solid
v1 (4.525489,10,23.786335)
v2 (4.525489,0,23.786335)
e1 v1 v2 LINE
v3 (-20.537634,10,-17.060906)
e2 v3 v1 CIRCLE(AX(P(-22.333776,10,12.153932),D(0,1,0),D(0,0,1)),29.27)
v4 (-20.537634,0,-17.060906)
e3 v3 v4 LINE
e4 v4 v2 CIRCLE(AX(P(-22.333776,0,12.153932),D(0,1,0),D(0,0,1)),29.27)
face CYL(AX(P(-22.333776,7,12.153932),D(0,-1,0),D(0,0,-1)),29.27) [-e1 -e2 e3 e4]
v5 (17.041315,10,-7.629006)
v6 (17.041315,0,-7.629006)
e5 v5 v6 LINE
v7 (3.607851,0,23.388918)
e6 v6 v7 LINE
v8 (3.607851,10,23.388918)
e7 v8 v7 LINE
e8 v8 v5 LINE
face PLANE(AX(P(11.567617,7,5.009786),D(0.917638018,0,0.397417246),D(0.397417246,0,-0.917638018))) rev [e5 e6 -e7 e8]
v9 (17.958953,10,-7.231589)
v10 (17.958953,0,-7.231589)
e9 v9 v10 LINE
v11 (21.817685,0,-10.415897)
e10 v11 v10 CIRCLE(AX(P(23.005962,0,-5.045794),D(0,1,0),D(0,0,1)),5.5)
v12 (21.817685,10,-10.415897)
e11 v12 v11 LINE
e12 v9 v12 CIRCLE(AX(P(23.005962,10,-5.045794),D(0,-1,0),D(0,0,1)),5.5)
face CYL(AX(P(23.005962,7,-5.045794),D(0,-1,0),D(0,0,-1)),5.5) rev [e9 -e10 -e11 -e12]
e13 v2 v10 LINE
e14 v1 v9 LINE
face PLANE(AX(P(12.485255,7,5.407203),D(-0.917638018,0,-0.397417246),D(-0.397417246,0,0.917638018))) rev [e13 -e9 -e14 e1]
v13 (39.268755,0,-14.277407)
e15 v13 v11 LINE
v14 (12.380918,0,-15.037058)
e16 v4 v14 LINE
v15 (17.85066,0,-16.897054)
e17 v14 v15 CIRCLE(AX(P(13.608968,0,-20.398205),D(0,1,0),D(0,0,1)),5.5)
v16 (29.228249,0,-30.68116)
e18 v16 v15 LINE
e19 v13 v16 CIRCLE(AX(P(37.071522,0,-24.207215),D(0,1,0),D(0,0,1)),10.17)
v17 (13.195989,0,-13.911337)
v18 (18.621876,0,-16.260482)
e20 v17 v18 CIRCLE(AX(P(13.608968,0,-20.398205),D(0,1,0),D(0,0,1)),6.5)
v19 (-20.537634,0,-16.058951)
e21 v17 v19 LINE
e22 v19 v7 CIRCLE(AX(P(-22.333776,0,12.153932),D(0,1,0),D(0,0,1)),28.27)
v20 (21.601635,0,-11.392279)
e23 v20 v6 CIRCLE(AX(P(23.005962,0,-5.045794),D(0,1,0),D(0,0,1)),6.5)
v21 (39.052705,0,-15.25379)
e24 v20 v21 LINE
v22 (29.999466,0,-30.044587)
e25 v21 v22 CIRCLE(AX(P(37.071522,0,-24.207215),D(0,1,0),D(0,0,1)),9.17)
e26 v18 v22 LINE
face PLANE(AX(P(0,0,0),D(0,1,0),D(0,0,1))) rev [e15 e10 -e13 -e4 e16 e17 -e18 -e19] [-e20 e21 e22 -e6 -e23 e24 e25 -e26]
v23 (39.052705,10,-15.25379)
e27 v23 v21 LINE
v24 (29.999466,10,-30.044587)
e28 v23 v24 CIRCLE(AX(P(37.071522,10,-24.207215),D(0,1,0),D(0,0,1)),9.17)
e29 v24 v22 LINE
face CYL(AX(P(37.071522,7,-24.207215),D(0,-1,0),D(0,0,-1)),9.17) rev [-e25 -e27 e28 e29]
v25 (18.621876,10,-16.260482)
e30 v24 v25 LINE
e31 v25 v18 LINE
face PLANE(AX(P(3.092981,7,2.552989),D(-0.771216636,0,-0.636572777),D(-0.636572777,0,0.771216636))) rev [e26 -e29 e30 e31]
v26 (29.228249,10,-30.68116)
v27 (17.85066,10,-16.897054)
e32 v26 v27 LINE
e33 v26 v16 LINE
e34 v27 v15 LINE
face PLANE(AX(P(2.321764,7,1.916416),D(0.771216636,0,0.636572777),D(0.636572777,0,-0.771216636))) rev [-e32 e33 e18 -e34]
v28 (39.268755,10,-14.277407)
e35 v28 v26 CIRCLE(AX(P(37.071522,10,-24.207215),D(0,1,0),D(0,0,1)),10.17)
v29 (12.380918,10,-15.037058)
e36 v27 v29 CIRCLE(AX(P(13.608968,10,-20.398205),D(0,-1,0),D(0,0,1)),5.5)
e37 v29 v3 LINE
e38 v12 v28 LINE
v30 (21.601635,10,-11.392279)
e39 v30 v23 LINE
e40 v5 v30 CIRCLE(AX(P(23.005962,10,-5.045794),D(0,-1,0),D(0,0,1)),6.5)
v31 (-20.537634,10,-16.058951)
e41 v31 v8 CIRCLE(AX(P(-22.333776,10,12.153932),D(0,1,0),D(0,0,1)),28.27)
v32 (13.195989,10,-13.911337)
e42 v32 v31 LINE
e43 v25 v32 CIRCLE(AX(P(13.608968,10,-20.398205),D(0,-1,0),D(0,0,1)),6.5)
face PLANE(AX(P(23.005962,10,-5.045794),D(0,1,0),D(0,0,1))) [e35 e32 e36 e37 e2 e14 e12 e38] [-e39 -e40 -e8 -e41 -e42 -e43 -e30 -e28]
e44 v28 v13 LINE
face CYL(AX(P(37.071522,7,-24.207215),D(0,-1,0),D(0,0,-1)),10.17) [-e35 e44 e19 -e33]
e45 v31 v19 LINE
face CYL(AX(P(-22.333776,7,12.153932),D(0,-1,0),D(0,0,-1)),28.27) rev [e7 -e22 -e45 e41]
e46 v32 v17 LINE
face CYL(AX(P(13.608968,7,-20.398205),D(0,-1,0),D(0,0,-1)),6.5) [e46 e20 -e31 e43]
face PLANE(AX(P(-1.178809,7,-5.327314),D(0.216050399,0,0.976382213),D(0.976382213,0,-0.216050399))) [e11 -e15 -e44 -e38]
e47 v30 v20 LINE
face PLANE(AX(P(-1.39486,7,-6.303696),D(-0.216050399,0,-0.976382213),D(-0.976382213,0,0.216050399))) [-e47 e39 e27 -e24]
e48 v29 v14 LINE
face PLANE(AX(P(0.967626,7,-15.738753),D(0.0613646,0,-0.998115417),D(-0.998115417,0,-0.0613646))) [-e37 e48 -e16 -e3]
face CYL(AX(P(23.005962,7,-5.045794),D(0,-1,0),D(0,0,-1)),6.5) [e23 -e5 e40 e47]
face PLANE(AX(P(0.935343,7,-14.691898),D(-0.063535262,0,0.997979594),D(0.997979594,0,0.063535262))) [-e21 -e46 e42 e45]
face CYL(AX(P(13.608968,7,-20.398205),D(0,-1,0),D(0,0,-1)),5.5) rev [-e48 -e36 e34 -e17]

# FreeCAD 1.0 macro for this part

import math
import FreeCAD as App
import Part
import Sketcher
from FreeCAD import Vector

doc = App.newDocument("Part")
body = doc.addObject("PartDesign::Body", "Body")

# Sketch on XZ plane
sketch1 = body.newObject("Sketcher::SketchObject", "Sketch")
sketch1.AttachmentSupport = (doc.getObject("XZ_Plane"), [""])
sketch1.MapMode = "FlatFace"
sketch1.addGeometry(Part.LineSegment(Vector(29, -31, 0), Vector(18, -17, 0)), False)
sketch1.addGeometry(Part.ArcOfCircle(Part.Circle(Vector(14, -20, 0), Vector(0, 0, 1), 5), math.radians(40), math.radians(103)), False)
sketch1.addGeometry(Part.LineSegment(Vector(12, -15, 0), Vector(-21, -17, 0)), False)
sketch1.addGeometry(Part.ArcOfCircle(Part.Circle(Vector(-22, 12, 0), Vector(0, 0, 1), 29), math.radians(23), math.radians(274)), False)
sketch1.addGeometry(Part.LineSegment(Vector(5, 24, 0), Vector(18, -7, 0)), False)
sketch1.addGeometry(Part.ArcOfCircle(Part.Circle(Vector(23, -5, 0), Vector(0, 0, 1), 6), math.radians(-157), math.radians(-102)), False)
sketch1.addGeometry(Part.LineSegment(Vector(22, -10, 0), Vector(39, -14, 0)), False)
sketch1.addGeometry(Part.ArcOfCircle(Part.Circle(Vector(37, -24, 0), Vector(0, 0, 1), 10), math.radians(-140), math.radians(78)), False)
sketch1.addGeometry(Part.LineSegment(Vector(17, -8, 0), Vector(4, 23, 0)), False)
sketch1.addGeometry(Part.ArcOfCircle(Part.Circle(Vector(-22, 12, 0), Vector(0, 0, 1), 28), math.radians(23), math.radians(274)), False)
sketch1.addGeometry(Part.LineSegment(Vector(-21, -16, 0), Vector(13, -14, 0)), False)
sketch1.addGeometry(Part.ArcOfCircle(Part.Circle(Vector(14, -20, 0), Vector(0, 0, 1), 6), math.radians(40), math.radians(94)), False)
sketch1.addGeometry(Part.LineSegment(Vector(19, -16, 0), Vector(30, -30, 0)), False)
sketch1.addGeometry(Part.ArcOfCircle(Part.Circle(Vector(37, -24, 0), Vector(0, 0, 1), 9), math.radians(-140), math.radians(78)), False)
sketch1.addGeometry(Part.LineSegment(Vector(39, -15, 0), Vector(22, -11, 0)), False)
sketch1.addGeometry(Part.ArcOfCircle(Part.Circle(Vector(23, -5, 0), Vector(0, 0, 1), 7), math.radians(-157), math.radians(-102)), False)
sketch1.addConstraint(Sketcher.Constraint("Tangent", 0, 2, 1, 1))
sketch1.addConstraint(Sketcher.Constraint("Coincident", 1, 2, 2, 1))
sketch1.addConstraint(Sketcher.Constraint("Tangent", 2, 2, 3, 2))
sketch1.addConstraint(Sketcher.Constraint("Tangent", 3, 1, 4, 1))
sketch1.addConstraint(Sketcher.Constraint("Tangent", 4, 2, 5, 1))
sketch1.addConstraint(Sketcher.Constraint("Tangent", 5, 2, 6, 1))
sketch1.addConstraint(Sketcher.Constraint("Tangent", 6, 2, 7, 2))
sketch1.addConstraint(Sketcher.Constraint("Tangent", 7, 1, 0, 1))
sketch1.addConstraint(Sketcher.Constraint("Tangent", 8, 2, 9, 1))
sketch1.addConstraint(Sketcher.Constraint("Tangent", 9, 2, 10, 1))
sketch1.addConstraint(Sketcher.Constraint("Tangent", 10, 2, 11, 2))
sketch1.addConstraint(Sketcher.Constraint("Tangent", 11, 1, 12, 1))
sketch1.addConstraint(Sketcher.Constraint("Tangent", 12, 2, 13, 1))
sketch1.addConstraint(Sketcher.Constraint("Tangent", 13, 2, 14, 1))
sketch1.addConstraint(Sketcher.Constraint("Tangent", 14, 2, 15, 2))
sketch1.addConstraint(Sketcher.Constraint("Tangent", 15, 1, 8, 1))
sketch1.addConstraint(Sketcher.Constraint("Coincident", 9, 3, 3, 3))
sketch1.addConstraint(Sketcher.Constraint("Coincident", 11, 3, 1, 3))
sketch1.addConstraint(Sketcher.Constraint("Coincident", 13, 3, 7, 3))
sketch1.addConstraint(Sketcher.Constraint("Coincident", 15, 3, 5, 3))
sketch1.addConstraint(Sketcher.Constraint("Equal", 1, 5))
sketch1.addConstraint(Sketcher.Constraint("Equal", 11, 15))
sketch1.addConstraint(Sketcher.Constraint("Parallel", 4, 8))
sketch1.addConstraint(Sketcher.Constraint("Parallel", 0, 12))
sketch1.addConstraint(Sketcher.Constraint("Vertical", 2, 2, 9, 2))
sketch1.addConstraint(Sketcher.Constraint("Equal", 0, 6))
sketch1.addConstraint(Sketcher.Constraint("Equal", 8, 10))
sketch1.addConstraint(Sketcher.Constraint("Radius", 1, 5.5))
sketch1.addConstraint(Sketcher.Constraint("Radius", 11, 6.5))
sketch1.addConstraint(Sketcher.Constraint("Radius", 3, 29.27))
sketch1.addConstraint(Sketcher.Constraint("Radius", 7, 10.17))
sketch1.addConstraint(Sketcher.Constraint("DistanceX", 3, 3, 7, 3, 59.405299))
sketch1.addConstraint(Sketcher.Constraint("DistanceY", 11, 3, 2, 2, 3.337299))
sketch1.addConstraint(Sketcher.Constraint("DistanceX", -1, 1, 1, 3, 13.608968))
sketch1.addConstraint(Sketcher.Constraint("DistanceX", -1, 1, 0, 2, 17.85066))
sketch1.addConstraint(Sketcher.Constraint("DistanceY", 1, 2, -1, 1, 15.037058))
sketch1.addConstraint(Sketcher.Constraint("DistanceX", -1, 1, 3, 1, 4.525489))
pad1 = body.newObject("PartDesign::Pad", "Pad")
pad1.Profile = sketch1
pad1.Length = 7
pad1.Reversed = True

# Sketch on XZ plane
sketch2 = body.newObject("Sketcher::SketchObject", "Sketch001")
sketch2.AttachmentSupport = (doc.getObject("XZ_Plane"), [""])
sketch2.MapMode = "FlatFace"
sketch2.AttachmentOffset = App.Placement(Vector(0, 0, -7), App.Rotation())
sketch2.addGeometry(Part.LineSegment(Vector(22, -10, 0), Vector(39, -14, 0)), False)
sketch2.addGeometry(Part.ArcOfCircle(Part.Circle(Vector(37, -24, 0), Vector(0, 0, 1), 10), math.radians(-140), math.radians(78)), False)
sketch2.addGeometry(Part.LineSegment(Vector(29, -31, 0), Vector(18, -17, 0)), False)
sketch2.addGeometry(Part.ArcOfCircle(Part.Circle(Vector(14, -20, 0), Vector(0, 0, 1), 5), math.radians(40), math.radians(103)), False)
sketch2.addGeometry(Part.LineSegment(Vector(12, -15, 0), Vector(-21, -17, 0)), False)
sketch2.addGeometry(Part.ArcOfCircle(Part.Circle(Vector(-22, 12, 0), Vector(0, 0, 1), 29), math.radians(23), math.radians(274)), False)
sketch2.addGeometry(Part.LineSegment(Vector(5, 24, 0), Vector(18, -7, 0)), False)
sketch2.addGeometry(Part.ArcOfCircle(Part.Circle(Vector(23, -5, 0), Vector(0, 0, 1), 6), math.radians(-157), math.radians(-102)), False)
sketch2.addGeometry(Part.ArcOfCircle(Part.Circle(Vector(23, -5, 0), Vector(0, 0, 1), 7), math.radians(-157), math.radians(-102)), False)
sketch2.addGeometry(Part.LineSegment(Vector(17, -8, 0), Vector(4, 23, 0)), False)
sketch2.addGeometry(Part.ArcOfCircle(Part.Circle(Vector(-22, 12, 0), Vector(0, 0, 1), 28), math.radians(23), math.radians(274)), False)
sketch2.addGeometry(Part.LineSegment(Vector(-21, -16, 0), Vector(13, -14, 0)), False)
sketch2.addGeometry(Part.ArcOfCircle(Part.Circle(Vector(14, -20, 0), Vector(0, 0, 1), 6), math.radians(40), math.radians(94)), False)
sketch2.addGeometry(Part.LineSegment(Vector(19, -16, 0), Vector(30, -30, 0)), False)
sketch2.addGeometry(Part.ArcOfCircle(Part.Circle(Vector(37, -24, 0), Vector(0, 0, 1), 9), math.radians(-140), math.radians(78)), False)
sketch2.addGeometry(Part.LineSegment(Vector(39, -15, 0), Vector(22, -11, 0)), False)
sketch2.addConstraint(Sketcher.Constraint("Tangent", 0, 2, 1, 2))
sketch2.addConstraint(Sketcher.Constraint("Tangent", 1, 1, 2, 1))
sketch2.addConstraint(Sketcher.Constraint("Tangent", 2, 2, 3, 1))
sketch2.addConstraint(Sketcher.Constraint("Coincident", 3, 2, 4, 1))
sketch2.addConstraint(Sketcher.Constraint("Tangent", 4, 2, 5, 2))
sketch2.addConstraint(Sketcher.Constraint("Tangent", 5, 1, 6, 1))
sketch2.addConstraint(Sketcher.Constraint("Tangent", 6, 2, 7, 1))
sketch2.addConstraint(Sketcher.Constraint("Tangent", 7, 2, 0, 1))
sketch2.addConstraint(Sketcher.Constraint("Tangent", 8, 1, 9, 1))
sketch2.addConstraint(Sketcher.Constraint("Tangent", 9, 2, 10, 1))
sketch2.addConstraint(Sketcher.Constraint("Tangent", 10, 2, 11, 1))
sketch2.addConstraint(Sketcher.Constraint("Tangent", 11, 2, 12, 2))
sketch2.addConstraint(Sketcher.Constraint("Tangent", 12, 1, 13, 1))
sketch2.addConstraint(Sketcher.Constraint("Tangent", 13, 2, 14, 1))
sketch2.addConstraint(Sketcher.Constraint("Tangent", 14, 2, 15, 1))
sketch2.addConstraint(Sketcher.Constraint("Tangent", 15, 2, 8, 2))
sketch2.addConstraint(Sketcher.Constraint("Coincident", 8, 3, 7, 3))
sketch2.addConstraint(Sketcher.Constraint("Coincident", 10, 3, 5, 3))
sketch2.addConstraint(Sketcher.Constraint("Coincident", 12, 3, 3, 3))
sketch2.addConstraint(Sketcher.Constraint("Coincident", 14, 3, 1, 3))
sketch2.addConstraint(Sketcher.Constraint("Equal", 3, 7))
sketch2.addConstraint(Sketcher.Constraint("Equal", 8, 12))
sketch2.addConstraint(Sketcher.Constraint("Parallel", 6, 9))
sketch2.addConstraint(Sketcher.Constraint("Parallel", 2, 13))
sketch2.addConstraint(Sketcher.Constraint("Vertical", 4, 2, 10, 2))
sketch2.addConstraint(Sketcher.Constraint("Equal", 0, 2))
sketch2.addConstraint(Sketcher.Constraint("Equal", 9, 11))
sketch2.addConstraint(Sketcher.Constraint("Radius", 3, 5.5))
sketch2.addConstraint(Sketcher.Constraint("Radius", 8, 6.5))
sketch2.addConstraint(Sketcher.Constraint("Radius", 1, 10.17))
sketch2.addConstraint(Sketcher.Constraint("Radius", 5, 29.27))
sketch2.addConstraint(Sketcher.Constraint("DistanceX", 5, 3, 1, 3, 59.405299))
sketch2.addConstraint(Sketcher.Constraint("DistanceY", 12, 3, 4, 2, 3.337299))
sketch2.addConstraint(Sketcher.Constraint("DistanceX", -1, 1, 3, 3, 13.608968))
sketch2.addConstraint(Sketcher.Constraint("DistanceX", -1, 1, 1, 1, 29.228249))
sketch2.addConstraint(Sketcher.Constraint("DistanceY", 1, 1, -1, 1, 30.68116))
sketch2.addConstraint(Sketcher.Constraint("DistanceX", -1, 1, 2, 2, 17.85066))
pad2 = body.newObject("PartDesign::Pad", "Pad001")
pad2.Profile = sketch2
pad2.Length = 3
pad2.Reversed = True

doc.recompute()
